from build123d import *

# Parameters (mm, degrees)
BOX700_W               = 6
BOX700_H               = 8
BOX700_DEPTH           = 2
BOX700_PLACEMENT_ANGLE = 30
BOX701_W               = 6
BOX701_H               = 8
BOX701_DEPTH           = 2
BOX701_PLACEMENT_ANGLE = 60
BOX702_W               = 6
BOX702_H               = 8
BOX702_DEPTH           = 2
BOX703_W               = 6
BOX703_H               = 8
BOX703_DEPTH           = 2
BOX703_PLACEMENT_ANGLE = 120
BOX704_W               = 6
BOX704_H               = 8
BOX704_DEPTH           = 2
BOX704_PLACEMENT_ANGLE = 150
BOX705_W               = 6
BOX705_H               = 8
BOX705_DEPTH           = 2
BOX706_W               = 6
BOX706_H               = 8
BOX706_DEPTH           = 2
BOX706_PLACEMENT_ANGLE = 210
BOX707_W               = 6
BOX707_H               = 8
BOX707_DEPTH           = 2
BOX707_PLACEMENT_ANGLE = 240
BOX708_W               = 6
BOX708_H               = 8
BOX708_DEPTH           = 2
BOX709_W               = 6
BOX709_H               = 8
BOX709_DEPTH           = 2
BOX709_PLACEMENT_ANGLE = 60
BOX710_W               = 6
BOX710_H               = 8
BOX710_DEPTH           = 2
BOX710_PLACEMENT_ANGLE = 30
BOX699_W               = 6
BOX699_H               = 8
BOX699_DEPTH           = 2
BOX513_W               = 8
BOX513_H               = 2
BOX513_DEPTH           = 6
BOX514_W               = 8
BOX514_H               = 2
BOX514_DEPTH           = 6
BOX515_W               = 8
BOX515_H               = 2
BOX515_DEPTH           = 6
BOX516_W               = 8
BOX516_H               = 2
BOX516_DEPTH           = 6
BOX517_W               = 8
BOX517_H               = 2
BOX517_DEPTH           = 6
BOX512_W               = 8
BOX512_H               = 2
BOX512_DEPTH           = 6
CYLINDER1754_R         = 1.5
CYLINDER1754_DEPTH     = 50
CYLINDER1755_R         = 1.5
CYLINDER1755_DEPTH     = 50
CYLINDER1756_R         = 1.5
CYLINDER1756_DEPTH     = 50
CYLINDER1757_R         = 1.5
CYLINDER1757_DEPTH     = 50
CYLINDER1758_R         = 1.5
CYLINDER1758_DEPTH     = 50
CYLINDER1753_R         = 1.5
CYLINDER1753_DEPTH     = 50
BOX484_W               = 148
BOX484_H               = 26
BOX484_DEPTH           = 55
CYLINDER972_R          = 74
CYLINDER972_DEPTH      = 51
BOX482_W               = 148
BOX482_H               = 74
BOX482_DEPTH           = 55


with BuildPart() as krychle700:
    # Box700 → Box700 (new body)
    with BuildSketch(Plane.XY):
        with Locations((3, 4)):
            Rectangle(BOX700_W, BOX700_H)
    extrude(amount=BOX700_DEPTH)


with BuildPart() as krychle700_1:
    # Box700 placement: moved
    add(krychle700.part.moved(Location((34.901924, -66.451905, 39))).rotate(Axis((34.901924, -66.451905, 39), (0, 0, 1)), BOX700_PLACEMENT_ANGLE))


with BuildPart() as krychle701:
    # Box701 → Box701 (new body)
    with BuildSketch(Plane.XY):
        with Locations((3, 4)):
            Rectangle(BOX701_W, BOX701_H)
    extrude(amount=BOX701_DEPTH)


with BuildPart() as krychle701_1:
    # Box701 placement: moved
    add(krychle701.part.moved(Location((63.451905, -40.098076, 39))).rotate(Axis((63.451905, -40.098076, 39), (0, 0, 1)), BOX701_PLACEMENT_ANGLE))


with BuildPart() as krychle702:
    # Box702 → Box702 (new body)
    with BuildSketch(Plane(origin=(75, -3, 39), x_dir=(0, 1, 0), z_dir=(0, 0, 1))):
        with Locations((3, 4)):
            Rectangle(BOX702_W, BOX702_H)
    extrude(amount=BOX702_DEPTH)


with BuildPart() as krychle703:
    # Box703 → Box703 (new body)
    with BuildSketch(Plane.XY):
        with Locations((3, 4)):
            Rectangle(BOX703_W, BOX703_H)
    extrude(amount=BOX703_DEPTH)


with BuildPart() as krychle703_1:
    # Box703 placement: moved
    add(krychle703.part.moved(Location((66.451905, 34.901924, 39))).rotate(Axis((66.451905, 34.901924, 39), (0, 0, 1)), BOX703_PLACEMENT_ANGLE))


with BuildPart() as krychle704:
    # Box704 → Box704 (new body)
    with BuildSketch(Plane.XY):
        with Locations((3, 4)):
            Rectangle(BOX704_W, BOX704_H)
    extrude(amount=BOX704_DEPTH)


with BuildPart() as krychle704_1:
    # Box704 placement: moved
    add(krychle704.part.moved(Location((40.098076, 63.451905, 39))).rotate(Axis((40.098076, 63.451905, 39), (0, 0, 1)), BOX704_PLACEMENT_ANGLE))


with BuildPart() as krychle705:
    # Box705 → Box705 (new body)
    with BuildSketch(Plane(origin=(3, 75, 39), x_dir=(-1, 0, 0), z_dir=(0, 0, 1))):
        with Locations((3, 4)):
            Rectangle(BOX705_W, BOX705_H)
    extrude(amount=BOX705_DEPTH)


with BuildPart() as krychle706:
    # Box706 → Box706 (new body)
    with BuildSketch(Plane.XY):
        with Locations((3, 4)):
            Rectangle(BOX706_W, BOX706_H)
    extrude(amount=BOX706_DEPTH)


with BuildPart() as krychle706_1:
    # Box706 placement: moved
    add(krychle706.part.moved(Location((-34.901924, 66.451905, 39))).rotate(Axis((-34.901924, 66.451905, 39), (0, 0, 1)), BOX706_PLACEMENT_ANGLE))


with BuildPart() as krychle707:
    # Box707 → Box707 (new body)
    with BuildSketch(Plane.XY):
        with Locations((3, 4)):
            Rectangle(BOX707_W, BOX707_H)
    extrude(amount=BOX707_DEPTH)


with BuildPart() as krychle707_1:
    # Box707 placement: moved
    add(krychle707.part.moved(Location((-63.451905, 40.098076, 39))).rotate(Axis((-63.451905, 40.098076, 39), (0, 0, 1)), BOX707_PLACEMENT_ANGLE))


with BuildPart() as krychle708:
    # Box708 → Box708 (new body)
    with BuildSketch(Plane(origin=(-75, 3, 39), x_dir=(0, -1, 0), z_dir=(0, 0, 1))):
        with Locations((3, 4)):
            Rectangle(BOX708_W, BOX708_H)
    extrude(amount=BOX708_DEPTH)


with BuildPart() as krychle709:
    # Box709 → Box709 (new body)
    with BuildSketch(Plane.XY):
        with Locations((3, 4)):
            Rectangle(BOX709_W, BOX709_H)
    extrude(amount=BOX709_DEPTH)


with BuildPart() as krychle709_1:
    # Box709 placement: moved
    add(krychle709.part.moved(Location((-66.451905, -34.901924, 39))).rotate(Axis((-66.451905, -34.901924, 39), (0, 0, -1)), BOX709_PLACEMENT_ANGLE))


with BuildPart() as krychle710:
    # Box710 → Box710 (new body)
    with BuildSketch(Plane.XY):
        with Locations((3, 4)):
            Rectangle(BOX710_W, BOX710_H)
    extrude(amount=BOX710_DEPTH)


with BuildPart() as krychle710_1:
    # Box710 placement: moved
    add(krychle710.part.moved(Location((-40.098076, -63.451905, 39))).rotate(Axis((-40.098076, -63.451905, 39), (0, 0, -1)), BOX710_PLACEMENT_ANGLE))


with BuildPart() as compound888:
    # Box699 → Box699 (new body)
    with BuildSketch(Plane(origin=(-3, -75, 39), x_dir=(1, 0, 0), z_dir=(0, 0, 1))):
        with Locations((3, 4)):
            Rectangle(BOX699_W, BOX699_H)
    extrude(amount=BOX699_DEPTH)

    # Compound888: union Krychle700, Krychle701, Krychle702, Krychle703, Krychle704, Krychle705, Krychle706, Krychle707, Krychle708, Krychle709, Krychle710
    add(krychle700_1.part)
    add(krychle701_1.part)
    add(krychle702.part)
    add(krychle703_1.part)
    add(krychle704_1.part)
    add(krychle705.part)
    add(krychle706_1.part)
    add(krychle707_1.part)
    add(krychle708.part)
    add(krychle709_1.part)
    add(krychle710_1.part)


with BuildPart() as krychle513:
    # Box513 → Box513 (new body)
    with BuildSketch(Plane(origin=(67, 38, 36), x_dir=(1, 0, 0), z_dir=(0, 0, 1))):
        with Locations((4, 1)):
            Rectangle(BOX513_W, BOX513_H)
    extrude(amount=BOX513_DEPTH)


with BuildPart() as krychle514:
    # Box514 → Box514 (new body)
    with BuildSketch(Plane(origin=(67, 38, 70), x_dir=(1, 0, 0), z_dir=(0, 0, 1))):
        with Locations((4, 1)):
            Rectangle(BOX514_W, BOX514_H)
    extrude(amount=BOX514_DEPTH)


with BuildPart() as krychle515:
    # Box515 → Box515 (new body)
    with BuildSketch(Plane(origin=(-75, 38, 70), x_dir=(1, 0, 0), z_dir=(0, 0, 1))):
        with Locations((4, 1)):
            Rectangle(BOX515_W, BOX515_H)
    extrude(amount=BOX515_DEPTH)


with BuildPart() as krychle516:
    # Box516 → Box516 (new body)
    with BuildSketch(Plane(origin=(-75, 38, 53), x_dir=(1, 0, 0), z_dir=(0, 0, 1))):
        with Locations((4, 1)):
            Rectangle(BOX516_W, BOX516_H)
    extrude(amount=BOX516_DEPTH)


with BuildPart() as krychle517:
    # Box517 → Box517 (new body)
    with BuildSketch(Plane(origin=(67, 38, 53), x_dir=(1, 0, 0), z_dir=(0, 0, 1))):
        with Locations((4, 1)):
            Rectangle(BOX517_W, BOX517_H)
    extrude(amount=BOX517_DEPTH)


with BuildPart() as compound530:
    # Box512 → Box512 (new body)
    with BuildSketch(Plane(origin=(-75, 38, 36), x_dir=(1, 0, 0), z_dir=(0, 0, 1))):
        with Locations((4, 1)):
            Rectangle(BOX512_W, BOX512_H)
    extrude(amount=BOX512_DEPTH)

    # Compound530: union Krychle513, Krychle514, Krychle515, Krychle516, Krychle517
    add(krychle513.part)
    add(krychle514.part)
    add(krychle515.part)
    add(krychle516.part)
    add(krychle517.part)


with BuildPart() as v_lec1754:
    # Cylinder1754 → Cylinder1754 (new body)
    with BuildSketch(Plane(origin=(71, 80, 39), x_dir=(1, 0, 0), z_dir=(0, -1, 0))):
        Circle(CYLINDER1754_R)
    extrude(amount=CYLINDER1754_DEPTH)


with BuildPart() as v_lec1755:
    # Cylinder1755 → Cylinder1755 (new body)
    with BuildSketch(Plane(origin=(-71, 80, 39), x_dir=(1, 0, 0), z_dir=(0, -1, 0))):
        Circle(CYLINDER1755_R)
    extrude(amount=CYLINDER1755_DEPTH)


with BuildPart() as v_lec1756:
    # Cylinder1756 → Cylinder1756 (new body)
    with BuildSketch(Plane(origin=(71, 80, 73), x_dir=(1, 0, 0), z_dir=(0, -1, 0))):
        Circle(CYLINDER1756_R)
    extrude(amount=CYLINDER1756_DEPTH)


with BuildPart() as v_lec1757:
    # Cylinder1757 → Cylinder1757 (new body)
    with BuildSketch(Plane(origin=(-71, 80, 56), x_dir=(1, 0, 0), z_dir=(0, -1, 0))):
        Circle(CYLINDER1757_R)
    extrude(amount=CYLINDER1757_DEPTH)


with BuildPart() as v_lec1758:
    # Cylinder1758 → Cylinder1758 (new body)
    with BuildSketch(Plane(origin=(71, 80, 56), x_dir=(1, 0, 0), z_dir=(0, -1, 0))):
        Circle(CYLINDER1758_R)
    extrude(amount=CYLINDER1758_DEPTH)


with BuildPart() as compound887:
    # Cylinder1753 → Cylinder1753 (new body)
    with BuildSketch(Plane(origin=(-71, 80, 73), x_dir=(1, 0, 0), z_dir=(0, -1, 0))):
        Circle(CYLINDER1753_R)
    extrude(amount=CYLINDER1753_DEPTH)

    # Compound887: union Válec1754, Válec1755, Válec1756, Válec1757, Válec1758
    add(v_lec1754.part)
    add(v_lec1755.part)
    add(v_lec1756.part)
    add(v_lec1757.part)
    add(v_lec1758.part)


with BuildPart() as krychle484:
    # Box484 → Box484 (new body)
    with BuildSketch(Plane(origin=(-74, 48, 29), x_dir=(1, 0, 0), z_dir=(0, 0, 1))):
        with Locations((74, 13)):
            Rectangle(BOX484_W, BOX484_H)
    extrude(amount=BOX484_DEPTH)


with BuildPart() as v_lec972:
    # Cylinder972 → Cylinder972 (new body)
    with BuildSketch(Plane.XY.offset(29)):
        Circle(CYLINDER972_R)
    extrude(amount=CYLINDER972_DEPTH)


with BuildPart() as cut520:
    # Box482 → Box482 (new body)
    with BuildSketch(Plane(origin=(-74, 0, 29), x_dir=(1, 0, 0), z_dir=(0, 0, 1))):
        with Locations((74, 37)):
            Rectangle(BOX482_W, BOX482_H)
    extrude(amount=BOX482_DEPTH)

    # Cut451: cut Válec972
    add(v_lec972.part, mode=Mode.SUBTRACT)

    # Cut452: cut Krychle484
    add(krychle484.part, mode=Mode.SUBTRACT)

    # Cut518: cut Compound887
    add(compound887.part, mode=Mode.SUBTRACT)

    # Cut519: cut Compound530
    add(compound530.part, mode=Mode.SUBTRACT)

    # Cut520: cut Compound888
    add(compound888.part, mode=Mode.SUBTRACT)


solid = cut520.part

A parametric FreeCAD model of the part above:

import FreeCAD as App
import Part
import Sketcher
from FreeCAD import Vector


def add_polygon(sketch, points):
    """Adds a closed chain of lines whose ends are joined by coincident constraints."""
    first, n = sketch.GeometryCount, len(points)
    for a, b in zip(points, points[1:] + points[:1]):
        sketch.addGeometry(Part.LineSegment(App.Vector(*a, 0), App.Vector(*b, 0)), False)
    for i in range(n):
        sketch.addConstraint(Sketcher.Constraint("Coincident", first + i, 2, first + (i + 1) % n, 1))

doc = App.newDocument("Part")
params = doc.addObject("Spreadsheet::Sheet", "Params")
for row, (alias, value) in enumerate([
    ("sketch1_width", "6 mm"),
    ("sketch1_height", "8 mm"),
    ("pad1_length", "2 mm"),
    ("sketch2_width", "6 mm"),
    ("sketch2_height", "8 mm"),
    ("pad2_length", "2 mm"),
    ("sketch3_width", "8 mm"),
    ("sketch3_height", "6 mm"),
    ("pad3_length", "2 mm"),
    ("sketch4_width", "6 mm"),
    ("sketch4_height", "8 mm"),
    ("pad4_length", "2 mm"),
    ("sketch5_width", "6 mm"),
    ("sketch5_height", "8 mm"),
    ("pad5_length", "2 mm"),
    ("sketch6_width", "6 mm"),
    ("sketch6_height", "8 mm"),
    ("pad6_length", "2 mm"),
    ("sketch7_width", "6 mm"),
    ("sketch7_height", "8 mm"),
    ("pad7_length", "2 mm"),
    ("sketch8_width", "6 mm"),
    ("sketch8_height", "8 mm"),
    ("pad8_length", "2 mm"),
    ("sketch9_width", "8 mm"),
    ("sketch9_height", "6 mm"),
    ("pad9_length", "2 mm"),
    ("sketch10_width", "6 mm"),
    ("sketch10_height", "8 mm"),
    ("pad10_length", "2 mm"),
    ("sketch11_width", "6 mm"),
    ("sketch11_height", "8 mm"),
    ("pad11_length", "2 mm"),
    ("sketch12_width", "6 mm"),
    ("sketch12_height", "8 mm"),
    ("pad12_length", "2 mm"),
    ("sketch13_width", "8 mm"),
    ("sketch13_height", "2 mm"),
    ("pad13_length", "6 mm"),
    ("sketch14_width", "8 mm"),
    ("sketch14_height", "2 mm"),
    ("pad14_length", "6 mm"),
    ("sketch15_width", "8 mm"),
    ("sketch15_height", "2 mm"),
    ("pad15_length", "6 mm"),
    ("sketch16_width", "8 mm"),
    ("sketch16_height", "2 mm"),
    ("pad16_length", "6 mm"),
    ("sketch17_width", "8 mm"),
    ("sketch17_height", "2 mm"),
    ("pad17_length", "6 mm"),
    ("sketch18_width", "8 mm"),
    ("sketch18_height", "2 mm"),
    ("pad18_length", "6 mm"),
    ("sketch19_diameter", "3 mm"),
    ("pad19_length", "50 mm"),
    ("sketch20_diameter", "3 mm"),
    ("pad20_length", "50 mm"),
    ("sketch21_diameter", "3 mm"),
    ("pad21_length", "50 mm"),
    ("sketch22_diameter", "3 mm"),
    ("pad22_length", "50 mm"),
    ("sketch23_diameter", "3 mm"),
    ("pad23_length", "50 mm"),
    ("sketch24_diameter", "3 mm"),
    ("pad24_length", "50 mm"),
    ("sketch25_width", "148 mm"),
    ("sketch25_height", "26 mm"),
    ("pad25_length", "55 mm"),
    ("sketch26_diameter", "148 mm"),
    ("pad26_length", "51 mm"),
    ("sketch27_width", "148 mm"),
    ("sketch27_height", "74 mm"),
    ("pad27_length", "55 mm"),
], start=1):
    params.set(f"A{row}", alias)
    params.set(f"B{row}", "=" + value)
    params.setAlias(f"B{row}", alias)

body = doc.addObject("PartDesign::Body", "Body")

sketch1 = body.newObject("Sketcher::SketchObject", "Sketch")
sketch1.AttachmentSupport = (doc.getObject("XY_Plane"), [""])
sketch1.MapMode = "FlatFace"
add_polygon(sketch1, [(0, 8), (0, 0), (6, 0), (6, 8)])
sketch1.addConstraint(Sketcher.Constraint("Vertical", 0))
sketch1.addConstraint(Sketcher.Constraint("Horizontal", 1))
sketch1.addConstraint(Sketcher.Constraint("Vertical", 2))
sketch1.addConstraint(Sketcher.Constraint("Horizontal", 3))
sketch1.addConstraint(Sketcher.Constraint("Coincident", 0, 2, -1, 1))
sketch1.addConstraint(Sketcher.Constraint("DistanceX", 1, 1, 1, 2, 6.0))
sketch1.addConstraint(Sketcher.Constraint("DistanceY", 0, 2, 0, 1, 8.0))
sketch1.setExpression("Constraints[9]", "Params.sketch1_width")
sketch1.setExpression("Constraints[10]", "Params.sketch1_height")
pad1 = body.newObject("PartDesign::Pad", "Pad")
pad1.Profile = sketch1
pad1.setExpression("Length", "Params.pad1_length")
body2 = doc.addObject("PartDesign::Body", "Body001")
doc.recompute()

body.Placement = App.Placement(Vector(34.901924, -66.451905, 39), App.Rotation(Vector(0, 0, 1), 30))
boolean = body2.newObject("PartDesign::Boolean", "Boolean")
boolean.Type = "Fuse"
boolean.addObjects([body])
body3 = doc.addObject("PartDesign::Body", "Body002")

sketch2 = body3.newObject("Sketcher::SketchObject", "Sketch001")
sketch2.AttachmentSupport = (doc.getObject("XY_Plane002"), [""])
sketch2.MapMode = "FlatFace"
add_polygon(sketch2, [(0, 8), (0, 0), (6, 0), (6, 8)])
sketch2.addConstraint(Sketcher.Constraint("Vertical", 0))
sketch2.addConstraint(Sketcher.Constraint("Horizontal", 1))
sketch2.addConstraint(Sketcher.Constraint("Vertical", 2))
sketch2.addConstraint(Sketcher.Constraint("Horizontal", 3))
sketch2.addConstraint(Sketcher.Constraint("Coincident", 0, 2, -1, 1))
sketch2.addConstraint(Sketcher.Constraint("DistanceX", 1, 1, 1, 2, 6.0))
sketch2.addConstraint(Sketcher.Constraint("DistanceY", 0, 2, 0, 1, 8.0))
sketch2.setExpression("Constraints[9]", "Params.sketch2_width")
sketch2.setExpression("Constraints[10]", "Params.sketch2_height")
pad2 = body3.newObject("PartDesign::Pad", "Pad001")
pad2.Profile = sketch2
pad2.setExpression("Length", "Params.pad2_length")
body4 = doc.addObject("PartDesign::Body", "Body003")
doc.recompute()

body3.Placement = App.Placement(Vector(63.451905, -40.098076, 39), App.Rotation(Vector(0, 0, 1), 60))
boolean2 = body4.newObject("PartDesign::Boolean", "Boolean001")
boolean2.Type = "Fuse"
boolean2.addObjects([body3])
body5 = doc.addObject("PartDesign::Body", "Body004")

sketch3 = body5.newObject("Sketcher::SketchObject", "Sketch002")
sketch3.AttachmentSupport = (doc.getObject("XY_Plane004"), [""])
sketch3.MapMode = "FlatFace"
sketch3.AttachmentOffset = App.Placement(Vector(0, 0, 39), App.Rotation())
add_polygon(sketch3, [(67, -3), (75, -3), (75, 3), (67, 3)])
sketch3.addConstraint(Sketcher.Constraint("Horizontal", 0))
sketch3.addConstraint(Sketcher.Constraint("Vertical", 1))
sketch3.addConstraint(Sketcher.Constraint("Horizontal", 2))
sketch3.addConstraint(Sketcher.Constraint("Vertical", 3))
sketch3.addConstraint(Sketcher.Constraint("DistanceX", 0, 1, 0, 2, 8.0))
sketch3.addConstraint(Sketcher.Constraint("DistanceY", 1, 1, 1, 2, 6.0))
sketch3.addConstraint(Sketcher.Constraint("DistanceX", -1, 1, 0, 2, 75.0))
sketch3.addConstraint(Sketcher.Constraint("DistanceY", 0, 2, -1, 1, 3.0))
sketch3.setExpression("Constraints[8]", "Params.sketch3_width")
sketch3.setExpression("Constraints[9]", "Params.sketch3_height")
pad3 = body5.newObject("PartDesign::Pad", "Pad002")
pad3.Profile = sketch3
pad3.setExpression("Length", "Params.pad3_length")
body6 = doc.addObject("PartDesign::Body", "Body005")

sketch4 = body6.newObject("Sketcher::SketchObject", "Sketch003")
sketch4.AttachmentSupport = (doc.getObject("XY_Plane005"), [""])
sketch4.MapMode = "FlatFace"
add_polygon(sketch4, [(0, 8), (0, 0), (6, 0), (6, 8)])
sketch4.addConstraint(Sketcher.Constraint("Vertical", 0))
sketch4.addConstraint(Sketcher.Constraint("Horizontal", 1))
sketch4.addConstraint(Sketcher.Constraint("Vertical", 2))
sketch4.addConstraint(Sketcher.Constraint("Horizontal", 3))
sketch4.addConstraint(Sketcher.Constraint("Coincident", 0, 2, -1, 1))
sketch4.addConstraint(Sketcher.Constraint("DistanceX", 1, 1, 1, 2, 6.0))
sketch4.addConstraint(Sketcher.Constraint("DistanceY", 0, 2, 0, 1, 8.0))
sketch4.setExpression("Constraints[9]", "Params.sketch4_width")
sketch4.setExpression("Constraints[10]", "Params.sketch4_height")
pad4 = body6.newObject("PartDesign::Pad", "Pad003")
pad4.Profile = sketch4
pad4.setExpression("Length", "Params.pad4_length")
body7 = doc.addObject("PartDesign::Body", "Body006")
doc.recompute()

body6.Placement = App.Placement(Vector(66.451905, 34.901924, 39), App.Rotation(Vector(0, 0, 1), 120))
boolean3 = body7.newObject("PartDesign::Boolean", "Boolean002")
boolean3.Type = "Fuse"
boolean3.addObjects([body6])
body8 = doc.addObject("PartDesign::Body", "Body007")

sketch5 = body8.newObject("Sketcher::SketchObject", "Sketch004")
sketch5.AttachmentSupport = (doc.getObject("XY_Plane007"), [""])
sketch5.MapMode = "FlatFace"
add_polygon(sketch5, [(0, 8), (0, 0), (6, 0), (6, 8)])
sketch5.addConstraint(Sketcher.Constraint("Vertical", 0))
sketch5.addConstraint(Sketcher.Constraint("Horizontal", 1))
sketch5.addConstraint(Sketcher.Constraint("Vertical", 2))
sketch5.addConstraint(Sketcher.Constraint("Horizontal", 3))
sketch5.addConstraint(Sketcher.Constraint("Coincident", 0, 2, -1, 1))
sketch5.addConstraint(Sketcher.Constraint("DistanceX", 1, 1, 1, 2, 6.0))
sketch5.addConstraint(Sketcher.Constraint("DistanceY", 0, 2, 0, 1, 8.0))
sketch5.setExpression("Constraints[9]", "Params.sketch5_width")
sketch5.setExpression("Constraints[10]", "Params.sketch5_height")
pad5 = body8.newObject("PartDesign::Pad", "Pad004")
pad5.Profile = sketch5
pad5.setExpression("Length", "Params.pad5_length")
body9 = doc.addObject("PartDesign::Body", "Body008")
doc.recompute()

body8.Placement = App.Placement(Vector(40.098076, 63.451905, 39), App.Rotation(Vector(0, 0, 1), 150))
boolean4 = body9.newObject("PartDesign::Boolean", "Boolean003")
boolean4.Type = "Fuse"
boolean4.addObjects([body8])
body10 = doc.addObject("PartDesign::Body", "Body009")

sketch6 = body10.newObject("Sketcher::SketchObject", "Sketch005")
sketch6.AttachmentSupport = (doc.getObject("XY_Plane009"), [""])
sketch6.MapMode = "FlatFace"
sketch6.AttachmentOffset = App.Placement(Vector(0, 0, 39), App.Rotation())
add_polygon(sketch6, [(3, 67), (3, 75), (-3, 75), (-3, 67)])
sketch6.addConstraint(Sketcher.Constraint("Vertical", 0))
sketch6.addConstraint(Sketcher.Constraint("Horizontal", 1))
sketch6.addConstraint(Sketcher.Constraint("Vertical", 2))
sketch6.addConstraint(Sketcher.Constraint("Horizontal", 3))
sketch6.addConstraint(Sketcher.Constraint("DistanceX", 1, 2, 1, 1, 6.0))
sketch6.addConstraint(Sketcher.Constraint("DistanceY", 0, 1, 0, 2, 8.0))
sketch6.addConstraint(Sketcher.Constraint("DistanceX", -1, 1, 0, 2, 3.0))
sketch6.addConstraint(Sketcher.Constraint("DistanceY", -1, 1, 0, 2, 75.0))
sketch6.setExpression("Constraints[8]", "Params.sketch6_width")
sketch6.setExpression("Constraints[9]", "Params.sketch6_height")
pad6 = body10.newObject("PartDesign::Pad", "Pad005")
pad6.Profile = sketch6
pad6.setExpression("Length", "Params.pad6_length")
body11 = doc.addObject("PartDesign::Body", "Body010")

sketch7 = body11.newObject("Sketcher::SketchObject", "Sketch006")
sketch7.AttachmentSupport = (doc.getObject("XY_Plane010"), [""])
sketch7.MapMode = "FlatFace"
add_polygon(sketch7, [(0, 8), (0, 0), (6, 0), (6, 8)])
sketch7.addConstraint(Sketcher.Constraint("Vertical", 0))
sketch7.addConstraint(Sketcher.Constraint("Horizontal", 1))
sketch7.addConstraint(Sketcher.Constraint("Vertical", 2))
sketch7.addConstraint(Sketcher.Constraint("Horizontal", 3))
sketch7.addConstraint(Sketcher.Constraint("Coincident", 0, 2, -1, 1))
sketch7.addConstraint(Sketcher.Constraint("DistanceX", 1, 1, 1, 2, 6.0))
sketch7.addConstraint(Sketcher.Constraint("DistanceY", 0, 2, 0, 1, 8.0))
sketch7.setExpression("Constraints[9]", "Params.sketch7_width")
sketch7.setExpression("Constraints[10]", "Params.sketch7_height")
pad7 = body11.newObject("PartDesign::Pad", "Pad006")
pad7.Profile = sketch7
pad7.setExpression("Length", "Params.pad7_length")
body12 = doc.addObject("PartDesign::Body", "Body011")
doc.recompute()

body11.Placement = App.Placement(Vector(-34.901924, 66.451905, 39), App.Rotation(Vector(0, 0, 1), 210))
boolean5 = body12.newObject("PartDesign::Boolean", "Boolean004")
boolean5.Type = "Fuse"
boolean5.addObjects([body11])
body13 = doc.addObject("PartDesign::Body", "Body012")

sketch8 = body13.newObject("Sketcher::SketchObject", "Sketch007")
sketch8.AttachmentSupport = (doc.getObject("XY_Plane012"), [""])
sketch8.MapMode = "FlatFace"
add_polygon(sketch8, [(0, 8), (0, 0), (6, 0), (6, 8)])
sketch8.addConstraint(Sketcher.Constraint("Vertical", 0))
sketch8.addConstraint(Sketcher.Constraint("Horizontal", 1))
sketch8.addConstraint(Sketcher.Constraint("Vertical", 2))
sketch8.addConstraint(Sketcher.Constraint("Horizontal", 3))
sketch8.addConstraint(Sketcher.Constraint("Coincident", 0, 2, -1, 1))
sketch8.addConstraint(Sketcher.Constraint("DistanceX", 1, 1, 1, 2, 6.0))
sketch8.addConstraint(Sketcher.Constraint("DistanceY", 0, 2, 0, 1, 8.0))
sketch8.setExpression("Constraints[9]", "Params.sketch8_width")
sketch8.setExpression("Constraints[10]", "Params.sketch8_height")
pad8 = body13.newObject("PartDesign::Pad", "Pad007")
pad8.Profile = sketch8
pad8.setExpression("Length", "Params.pad8_length")
body14 = doc.addObject("PartDesign::Body", "Body013")
doc.recompute()

body13.Placement = App.Placement(Vector(-63.451905, 40.098076, 39), App.Rotation(Vector(0, 0, 1), 240))
boolean6 = body14.newObject("PartDesign::Boolean", "Boolean005")
boolean6.Type = "Fuse"
boolean6.addObjects([body13])
body15 = doc.addObject("PartDesign::Body", "Body014")

sketch9 = body15.newObject("Sketcher::SketchObject", "Sketch008")
sketch9.AttachmentSupport = (doc.getObject("XY_Plane014"), [""])
sketch9.MapMode = "FlatFace"
sketch9.AttachmentOffset = App.Placement(Vector(0, 0, 39), App.Rotation())
add_polygon(sketch9, [(-67, 3), (-75, 3), (-75, -3), (-67, -3)])
sketch9.addConstraint(Sketcher.Constraint("Horizontal", 0))
sketch9.addConstraint(Sketcher.Constraint("Vertical", 1))
sketch9.addConstraint(Sketcher.Constraint("Horizontal", 2))
sketch9.addConstraint(Sketcher.Constraint("Vertical", 3))
sketch9.addConstraint(Sketcher.Constraint("DistanceX", 0, 2, 0, 1, 8.0))
sketch9.addConstraint(Sketcher.Constraint("DistanceY", 1, 2, 1, 1, 6.0))
sketch9.addConstraint(Sketcher.Constraint("DistanceX", 0, 2, -1, 1, 75.0))
sketch9.addConstraint(Sketcher.Constraint("DistanceY", -1, 1, 0, 2, 3.0))
sketch9.setExpression("Constraints[8]", "Params.sketch9_width")
sketch9.setExpression("Constraints[9]", "Params.sketch9_height")
pad9 = body15.newObject("PartDesign::Pad", "Pad008")
pad9.Profile = sketch9
pad9.setExpression("Length", "Params.pad9_length")
body16 = doc.addObject("PartDesign::Body", "Body015")

sketch10 = body16.newObject("Sketcher::SketchObject", "Sketch009")
sketch10.AttachmentSupport = (doc.getObject("XY_Plane015"), [""])
sketch10.MapMode = "FlatFace"
add_polygon(sketch10, [(0, 8), (0, 0), (6, 0), (6, 8)])
sketch10.addConstraint(Sketcher.Constraint("Vertical", 0))
sketch10.addConstraint(Sketcher.Constraint("Horizontal", 1))
sketch10.addConstraint(Sketcher.Constraint("Vertical", 2))
sketch10.addConstraint(Sketcher.Constraint("Horizontal", 3))
sketch10.addConstraint(Sketcher.Constraint("Coincident", 0, 2, -1, 1))
sketch10.addConstraint(Sketcher.Constraint("DistanceX", 1, 1, 1, 2, 6.0))
sketch10.addConstraint(Sketcher.Constraint("DistanceY", 0, 2, 0, 1, 8.0))
sketch10.setExpression("Constraints[9]", "Params.sketch10_width")
sketch10.setExpression("Constraints[10]", "Params.sketch10_height")
pad10 = body16.newObject("PartDesign::Pad", "Pad009")
pad10.Profile = sketch10
pad10.setExpression("Length", "Params.pad10_length")
body17 = doc.addObject("PartDesign::Body", "Body016")
doc.recompute()

body16.Placement = App.Placement(Vector(-66.451905, -34.901924, 39), App.Rotation(Vector(0, 0, -1), 60))
boolean7 = body17.newObject("PartDesign::Boolean", "Boolean006")
boolean7.Type = "Fuse"
boolean7.addObjects([body16])
body18 = doc.addObject("PartDesign::Body", "Body017")

sketch11 = body18.newObject("Sketcher::SketchObject", "Sketch010")
sketch11.AttachmentSupport = (doc.getObject("XY_Plane017"), [""])
sketch11.MapMode = "FlatFace"
add_polygon(sketch11, [(0, 8), (0, 0), (6, 0), (6, 8)])
sketch11.addConstraint(Sketcher.Constraint("Vertical", 0))
sketch11.addConstraint(Sketcher.Constraint("Horizontal", 1))
sketch11.addConstraint(Sketcher.Constraint("Vertical", 2))
sketch11.addConstraint(Sketcher.Constraint("Horizontal", 3))
sketch11.addConstraint(Sketcher.Constraint("Coincident", 0, 2, -1, 1))
sketch11.addConstraint(Sketcher.Constraint("DistanceX", 1, 1, 1, 2, 6.0))
sketch11.addConstraint(Sketcher.Constraint("DistanceY", 0, 2, 0, 1, 8.0))
sketch11.setExpression("Constraints[9]", "Params.sketch11_width")
sketch11.setExpression("Constraints[10]", "Params.sketch11_height")
pad11 = body18.newObject("PartDesign::Pad", "Pad010")
pad11.Profile = sketch11
pad11.setExpression("Length", "Params.pad11_length")
body19 = doc.addObject("PartDesign::Body", "Body018")
doc.recompute()

body18.Placement = App.Placement(Vector(-40.098076, -63.451905, 39), App.Rotation(Vector(0, 0, -1), 30))
boolean8 = body19.newObject("PartDesign::Boolean", "Boolean007")
boolean8.Type = "Fuse"
boolean8.addObjects([body18])
body20 = doc.addObject("PartDesign::Body", "Body019")
body20.AllowCompound = True

sketch12 = body20.newObject("Sketcher::SketchObject", "Sketch011")
sketch12.AttachmentSupport = (doc.getObject("XY_Plane019"), [""])
sketch12.MapMode = "FlatFace"
sketch12.AttachmentOffset = App.Placement(Vector(0, 0, 39), App.Rotation())
add_polygon(sketch12, [(-3, -67), (-3, -75), (3, -75), (3, -67)])
sketch12.addConstraint(Sketcher.Constraint("Vertical", 0))
sketch12.addConstraint(Sketcher.Constraint("Horizontal", 1))
sketch12.addConstraint(Sketcher.Constraint("Vertical", 2))
sketch12.addConstraint(Sketcher.Constraint("Horizontal", 3))
sketch12.addConstraint(Sketcher.Constraint("DistanceX", 1, 1, 1, 2, 6.0))
sketch12.addConstraint(Sketcher.Constraint("DistanceY", 0, 2, 0, 1, 8.0))
sketch12.addConstraint(Sketcher.Constraint("DistanceX", 0, 2, -1, 1, 3.0))
sketch12.addConstraint(Sketcher.Constraint("DistanceY", 0, 2, -1, 1, 75.0))
sketch12.setExpression("Constraints[8]", "Params.sketch12_width")
sketch12.setExpression("Constraints[9]", "Params.sketch12_height")
pad12 = body20.newObject("PartDesign::Pad", "Pad011")
pad12.Profile = sketch12
pad12.setExpression("Length", "Params.pad12_length")
doc.recompute()

boolean9 = body20.newObject("PartDesign::Boolean", "Boolean008")
boolean9.Type = "Fuse"
boolean9.addObjects([body2])
doc.recompute()

boolean10 = body20.newObject("PartDesign::Boolean", "Boolean009")
boolean10.Type = "Fuse"
boolean10.addObjects([body4])
doc.recompute()

boolean11 = body20.newObject("PartDesign::Boolean", "Boolean010")
boolean11.Type = "Fuse"
boolean11.addObjects([body5])
doc.recompute()

boolean12 = body20.newObject("PartDesign::Boolean", "Boolean011")
boolean12.Type = "Fuse"
boolean12.addObjects([body7])
doc.recompute()

boolean13 = body20.newObject("PartDesign::Boolean", "Boolean012")
boolean13.Type = "Fuse"
boolean13.addObjects([body9])
doc.recompute()

boolean14 = body20.newObject("PartDesign::Boolean", "Boolean013")
boolean14.Type = "Fuse"
boolean14.addObjects([body10])
doc.recompute()

boolean15 = body20.newObject("PartDesign::Boolean", "Boolean014")
boolean15.Type = "Fuse"
boolean15.addObjects([body12])
doc.recompute()

boolean16 = body20.newObject("PartDesign::Boolean", "Boolean015")
boolean16.Type = "Fuse"
boolean16.addObjects([body14])
doc.recompute()

boolean17 = body20.newObject("PartDesign::Boolean", "Boolean016")
boolean17.Type = "Fuse"
boolean17.addObjects([body15])
doc.recompute()

boolean18 = body20.newObject("PartDesign::Boolean", "Boolean017")
boolean18.Type = "Fuse"
boolean18.addObjects([body17])
doc.recompute()

boolean19 = body20.newObject("PartDesign::Boolean", "Boolean018")
boolean19.Type = "Fuse"
boolean19.addObjects([body19])
body21 = doc.addObject("PartDesign::Body", "Body020")

sketch13 = body21.newObject("Sketcher::SketchObject", "Sketch012")
sketch13.AttachmentSupport = (doc.getObject("XY_Plane020"), [""])
sketch13.MapMode = "FlatFace"
sketch13.AttachmentOffset = App.Placement(Vector(0, 0, 36), App.Rotation())
add_polygon(sketch13, [(67, 40), (67, 38), (75, 38), (75, 40)])
sketch13.addConstraint(Sketcher.Constraint("Vertical", 0))
sketch13.addConstraint(Sketcher.Constraint("Horizontal", 1))
sketch13.addConstraint(Sketcher.Constraint("Vertical", 2))
sketch13.addConstraint(Sketcher.Constraint("Horizontal", 3))
sketch13.addConstraint(Sketcher.Constraint("DistanceX", 1, 1, 1, 2, 8.0))
sketch13.addConstraint(Sketcher.Constraint("DistanceY", 0, 2, 0, 1, 2.0))
sketch13.addConstraint(Sketcher.Constraint("DistanceX", -1, 1, 0, 2, 67.0))
sketch13.addConstraint(Sketcher.Constraint("DistanceY", -1, 1, 0, 2, 38.0))
sketch13.setExpression("Constraints[8]", "Params.sketch13_width")
sketch13.setExpression("Constraints[9]", "Params.sketch13_height")
pad13 = body21.newObject("PartDesign::Pad", "Pad012")
pad13.Profile = sketch13
pad13.setExpression("Length", "Params.pad13_length")
body22 = doc.addObject("PartDesign::Body", "Body021")

sketch14 = body22.newObject("Sketcher::SketchObject", "Sketch013")
sketch14.AttachmentSupport = (doc.getObject("XY_Plane021"), [""])
sketch14.MapMode = "FlatFace"
sketch14.AttachmentOffset = App.Placement(Vector(0, 0, 70), App.Rotation())
add_polygon(sketch14, [(67, 40), (67, 38), (75, 38), (75, 40)])
sketch14.addConstraint(Sketcher.Constraint("Vertical", 0))
sketch14.addConstraint(Sketcher.Constraint("Horizontal", 1))
sketch14.addConstraint(Sketcher.Constraint("Vertical", 2))
sketch14.addConstraint(Sketcher.Constraint("Horizontal", 3))
sketch14.addConstraint(Sketcher.Constraint("DistanceX", 1, 1, 1, 2, 8.0))
sketch14.addConstraint(Sketcher.Constraint("DistanceY", 0, 2, 0, 1, 2.0))
sketch14.addConstraint(Sketcher.Constraint("DistanceX", -1, 1, 0, 2, 67.0))
sketch14.addConstraint(Sketcher.Constraint("DistanceY", -1, 1, 0, 2, 38.0))
sketch14.setExpression("Constraints[8]", "Params.sketch14_width")
sketch14.setExpression("Constraints[9]", "Params.sketch14_height")
pad14 = body22.newObject("PartDesign::Pad", "Pad013")
pad14.Profile = sketch14
pad14.setExpression("Length", "Params.pad14_length")
body23 = doc.addObject("PartDesign::Body", "Body022")

sketch15 = body23.newObject("Sketcher::SketchObject", "Sketch014")
sketch15.AttachmentSupport = (doc.getObject("XY_Plane022"), [""])
sketch15.MapMode = "FlatFace"
sketch15.AttachmentOffset = App.Placement(Vector(0, 0, 70), App.Rotation())
add_polygon(sketch15, [(-75, 40), (-75, 38), (-67, 38), (-67, 40)])
sketch15.addConstraint(Sketcher.Constraint("Vertical", 0))
sketch15.addConstraint(Sketcher.Constraint("Horizontal", 1))
sketch15.addConstraint(Sketcher.Constraint("Vertical", 2))
sketch15.addConstraint(Sketcher.Constraint("Horizontal", 3))
sketch15.addConstraint(Sketcher.Constraint("DistanceX", 1, 1, 1, 2, 8.0))
sketch15.addConstraint(Sketcher.Constraint("DistanceY", 0, 2, 0, 1, 2.0))
sketch15.addConstraint(Sketcher.Constraint("DistanceX", 0, 2, -1, 1, 75.0))
sketch15.addConstraint(Sketcher.Constraint("DistanceY", -1, 1, 0, 2, 38.0))
sketch15.setExpression("Constraints[8]", "Params.sketch15_width")
sketch15.setExpression("Constraints[9]", "Params.sketch15_height")
pad15 = body23.newObject("PartDesign::Pad", "Pad014")
pad15.Profile = sketch15
pad15.setExpression("Length", "Params.pad15_length")
body24 = doc.addObject("PartDesign::Body", "Body023")

sketch16 = body24.newObject("Sketcher::SketchObject", "Sketch015")
sketch16.AttachmentSupport = (doc.getObject("XY_Plane023"), [""])
sketch16.MapMode = "FlatFace"
sketch16.AttachmentOffset = App.Placement(Vector(0, 0, 53), App.Rotation())
add_polygon(sketch16, [(-75, 40), (-75, 38), (-67, 38), (-67, 40)])
sketch16.addConstraint(Sketcher.Constraint("Vertical", 0))
sketch16.addConstraint(Sketcher.Constraint("Horizontal", 1))
sketch16.addConstraint(Sketcher.Constraint("Vertical", 2))
sketch16.addConstraint(Sketcher.Constraint("Horizontal", 3))
sketch16.addConstraint(Sketcher.Constraint("DistanceX", 1, 1, 1, 2, 8.0))
sketch16.addConstraint(Sketcher.Constraint("DistanceY", 0, 2, 0, 1, 2.0))
sketch16.addConstraint(Sketcher.Constraint("DistanceX", 0, 2, -1, 1, 75.0))
sketch16.addConstraint(Sketcher.Constraint("DistanceY", -1, 1, 0, 2, 38.0))
sketch16.setExpression("Constraints[8]", "Params.sketch16_width")
sketch16.setExpression("Constraints[9]", "Params.sketch16_height")
pad16 = body24.newObject("PartDesign::Pad", "Pad015")
pad16.Profile = sketch16
pad16.setExpression("Length", "Params.pad16_length")
body25 = doc.addObject("PartDesign::Body", "Body024")

sketch17 = body25.newObject("Sketcher::SketchObject", "Sketch016")
sketch17.AttachmentSupport = (doc.getObject("XY_Plane024"), [""])
sketch17.MapMode = "FlatFace"
sketch17.AttachmentOffset = App.Placement(Vector(0, 0, 53), App.Rotation())
add_polygon(sketch17, [(67, 40), (67, 38), (75, 38), (75, 40)])
sketch17.addConstraint(Sketcher.Constraint("Vertical", 0))
sketch17.addConstraint(Sketcher.Constraint("Horizontal", 1))
sketch17.addConstraint(Sketcher.Constraint("Vertical", 2))
sketch17.addConstraint(Sketcher.Constraint("Horizontal", 3))
sketch17.addConstraint(Sketcher.Constraint("DistanceX", 1, 1, 1, 2, 8.0))
sketch17.addConstraint(Sketcher.Constraint("DistanceY", 0, 2, 0, 1, 2.0))
sketch17.addConstraint(Sketcher.Constraint("DistanceX", -1, 1, 0, 2, 67.0))
sketch17.addConstraint(Sketcher.Constraint("DistanceY", -1, 1, 0, 2, 38.0))
sketch17.setExpression("Constraints[8]", "Params.sketch17_width")
sketch17.setExpression("Constraints[9]", "Params.sketch17_height")
pad17 = body25.newObject("PartDesign::Pad", "Pad016")
pad17.Profile = sketch17
pad17.setExpression("Length", "Params.pad17_length")
body26 = doc.addObject("PartDesign::Body", "Body025")
body26.AllowCompound = True

sketch18 = body26.newObject("Sketcher::SketchObject", "Sketch017")
sketch18.AttachmentSupport = (doc.getObject("XY_Plane025"), [""])
sketch18.MapMode = "FlatFace"
sketch18.AttachmentOffset = App.Placement(Vector(0, 0, 36), App.Rotation())
add_polygon(sketch18, [(-75, 40), (-75, 38), (-67, 38), (-67, 40)])
sketch18.addConstraint(Sketcher.Constraint("Vertical", 0))
sketch18.addConstraint(Sketcher.Constraint("Horizontal", 1))
sketch18.addConstraint(Sketcher.Constraint("Vertical", 2))
sketch18.addConstraint(Sketcher.Constraint("Horizontal", 3))
sketch18.addConstraint(Sketcher.Constraint("DistanceX", 1, 1, 1, 2, 8.0))
sketch18.addConstraint(Sketcher.Constraint("DistanceY", 0, 2, 0, 1, 2.0))
sketch18.addConstraint(Sketcher.Constraint("DistanceX", 0, 2, -1, 1, 75.0))
sketch18.addConstraint(Sketcher.Constraint("DistanceY", -1, 1, 0, 2, 38.0))
sketch18.setExpression("Constraints[8]", "Params.sketch18_width")
sketch18.setExpression("Constraints[9]", "Params.sketch18_height")
pad18 = body26.newObject("PartDesign::Pad", "Pad017")
pad18.Profile = sketch18
pad18.setExpression("Length", "Params.pad18_length")
doc.recompute()

boolean20 = body26.newObject("PartDesign::Boolean", "Boolean019")
boolean20.Type = "Fuse"
boolean20.addObjects([body21])
doc.recompute()

boolean21 = body26.newObject("PartDesign::Boolean", "Boolean020")
boolean21.Type = "Fuse"
boolean21.addObjects([body22])
doc.recompute()

boolean22 = body26.newObject("PartDesign::Boolean", "Boolean021")
boolean22.Type = "Fuse"
boolean22.addObjects([body23])
doc.recompute()

boolean23 = body26.newObject("PartDesign::Boolean", "Boolean022")
boolean23.Type = "Fuse"
boolean23.addObjects([body24])
doc.recompute()

boolean24 = body26.newObject("PartDesign::Boolean", "Boolean023")
boolean24.Type = "Fuse"
boolean24.addObjects([body25])
body27 = doc.addObject("PartDesign::Body", "Body026")

sketch19 = body27.newObject("Sketcher::SketchObject", "Sketch018")
sketch19.AttachmentSupport = (doc.getObject("XZ_Plane026"), [""])
sketch19.MapMode = "FlatFace"
sketch19.AttachmentOffset = App.Placement(Vector(0, 0, -80), App.Rotation())
sketch19.addGeometry(Part.Circle(Vector(71, 39, 0), Vector(0, 0, 1), 1.5), False)
sketch19.addConstraint(Sketcher.Constraint("Diameter", 0, 3.0))
sketch19.addConstraint(Sketcher.Constraint("DistanceX", -1, 1, 0, 3, 71.0))
sketch19.addConstraint(Sketcher.Constraint("DistanceY", -1, 1, 0, 3, 39.0))
sketch19.setExpression("Constraints[0]", "Params.sketch19_diameter")
pad19 = body27.newObject("PartDesign::Pad", "Pad018")
pad19.Profile = sketch19
pad19.setExpression("Length", "Params.pad19_length")
body28 = doc.addObject("PartDesign::Body", "Body027")

sketch20 = body28.newObject("Sketcher::SketchObject", "Sketch019")
sketch20.AttachmentSupport = (doc.getObject("XZ_Plane027"), [""])
sketch20.MapMode = "FlatFace"
sketch20.AttachmentOffset = App.Placement(Vector(0, 0, -80), App.Rotation())
sketch20.addGeometry(Part.Circle(Vector(-71, 39, 0), Vector(0, 0, 1), 1.5), False)
sketch20.addConstraint(Sketcher.Constraint("Diameter", 0, 3.0))
sketch20.addConstraint(Sketcher.Constraint("DistanceX", 0, 3, -1, 1, 71.0))
sketch20.addConstraint(Sketcher.Constraint("DistanceY", -1, 1, 0, 3, 39.0))
sketch20.setExpression("Constraints[0]", "Params.sketch20_diameter")
pad20 = body28.newObject("PartDesign::Pad", "Pad019")
pad20.Profile = sketch20
pad20.setExpression("Length", "Params.pad20_length")
body29 = doc.addObject("PartDesign::Body", "Body028")

sketch21 = body29.newObject("Sketcher::SketchObject", "Sketch020")
sketch21.AttachmentSupport = (doc.getObject("XZ_Plane028"), [""])
sketch21.MapMode = "FlatFace"
sketch21.AttachmentOffset = App.Placement(Vector(0, 0, -80), App.Rotation())
sketch21.addGeometry(Part.Circle(Vector(71, 73, 0), Vector(0, 0, 1), 1.5), False)
sketch21.addConstraint(Sketcher.Constraint("Diameter", 0, 3.0))
sketch21.addConstraint(Sketcher.Constraint("DistanceX", -1, 1, 0, 3, 71.0))
sketch21.addConstraint(Sketcher.Constraint("DistanceY", -1, 1, 0, 3, 73.0))
sketch21.setExpression("Constraints[0]", "Params.sketch21_diameter")
pad21 = body29.newObject("PartDesign::Pad", "Pad020")
pad21.Profile = sketch21
pad21.setExpression("Length", "Params.pad21_length")
body30 = doc.addObject("PartDesign::Body", "Body029")

sketch22 = body30.newObject("Sketcher::SketchObject", "Sketch021")
sketch22.AttachmentSupport = (doc.getObject("XZ_Plane029"), [""])
sketch22.MapMode = "FlatFace"
sketch22.AttachmentOffset = App.Placement(Vector(0, 0, -80), App.Rotation())
sketch22.addGeometry(Part.Circle(Vector(-71, 56, 0), Vector(0, 0, 1), 1.5), False)
sketch22.addConstraint(Sketcher.Constraint("Diameter", 0, 3.0))
sketch22.addConstraint(Sketcher.Constraint("DistanceX", 0, 3, -1, 1, 71.0))
sketch22.addConstraint(Sketcher.Constraint("DistanceY", -1, 1, 0, 3, 56.0))
sketch22.setExpression("Constraints[0]", "Params.sketch22_diameter")
pad22 = body30.newObject("PartDesign::Pad", "Pad021")
pad22.Profile = sketch22
pad22.setExpression("Length", "Params.pad22_length")
body31 = doc.addObject("PartDesign::Body", "Body030")

sketch23 = body31.newObject("Sketcher::SketchObject", "Sketch022")
sketch23.AttachmentSupport = (doc.getObject("XZ_Plane030"), [""])
sketch23.MapMode = "FlatFace"
sketch23.AttachmentOffset = App.Placement(Vector(0, 0, -80), App.Rotation())
sketch23.addGeometry(Part.Circle(Vector(71, 56, 0), Vector(0, 0, 1), 1.5), False)
sketch23.addConstraint(Sketcher.Constraint("Diameter", 0, 3.0))
sketch23.addConstraint(Sketcher.Constraint("DistanceX", -1, 1, 0, 3, 71.0))
sketch23.addConstraint(Sketcher.Constraint("DistanceY", -1, 1, 0, 3, 56.0))
sketch23.setExpression("Constraints[0]", "Params.sketch23_diameter")
pad23 = body31.newObject("PartDesign::Pad", "Pad022")
pad23.Profile = sketch23
pad23.setExpression("Length", "Params.pad23_length")
body32 = doc.addObject("PartDesign::Body", "Body031")
body32.AllowCompound = True

sketch24 = body32.newObject("Sketcher::SketchObject", "Sketch023")
sketch24.AttachmentSupport = (doc.getObject("XZ_Plane031"), [""])
sketch24.MapMode = "FlatFace"
sketch24.AttachmentOffset = App.Placement(Vector(0, 0, -80), App.Rotation())
sketch24.addGeometry(Part.Circle(Vector(-71, 73, 0), Vector(0, 0, 1), 1.5), False)
sketch24.addConstraint(Sketcher.Constraint("Diameter", 0, 3.0))
sketch24.addConstraint(Sketcher.Constraint("DistanceX", 0, 3, -1, 1, 71.0))
sketch24.addConstraint(Sketcher.Constraint("DistanceY", -1, 1, 0, 3, 73.0))
sketch24.setExpression("Constraints[0]", "Params.sketch24_diameter")
pad24 = body32.newObject("PartDesign::Pad", "Pad023")
pad24.Profile = sketch24
pad24.setExpression("Length", "Params.pad24_length")
doc.recompute()

boolean25 = body32.newObject("PartDesign::Boolean", "Boolean024")
boolean25.Type = "Fuse"
boolean25.addObjects([body27])
doc.recompute()

boolean26 = body32.newObject("PartDesign::Boolean", "Boolean025")
boolean26.Type = "Fuse"
boolean26.addObjects([body28])
doc.recompute()

boolean27 = body32.newObject("PartDesign::Boolean", "Boolean026")
boolean27.Type = "Fuse"
boolean27.addObjects([body29])
doc.recompute()

boolean28 = body32.newObject("PartDesign::Boolean", "Boolean027")
boolean28.Type = "Fuse"
boolean28.addObjects([body30])
doc.recompute()

boolean29 = body32.newObject("PartDesign::Boolean", "Boolean028")
boolean29.Type = "Fuse"
boolean29.addObjects([body31])
body33 = doc.addObject("PartDesign::Body", "Body032")

sketch25 = body33.newObject("Sketcher::SketchObject", "Sketch024")
sketch25.AttachmentSupport = (doc.getObject("XY_Plane032"), [""])
sketch25.MapMode = "FlatFace"
sketch25.AttachmentOffset = App.Placement(Vector(0, 0, 29), App.Rotation())
add_polygon(sketch25, [(-74, 74), (-74, 48), (74, 48), (74, 74)])
sketch25.addConstraint(Sketcher.Constraint("Vertical", 0))
sketch25.addConstraint(Sketcher.Constraint("Horizontal", 1))
sketch25.addConstraint(Sketcher.Constraint("Vertical", 2))
sketch25.addConstraint(Sketcher.Constraint("Horizontal", 3))
sketch25.addConstraint(Sketcher.Constraint("DistanceX", 1, 1, 1, 2, 148.0))
sketch25.addConstraint(Sketcher.Constraint("DistanceY", 0, 2, 0, 1, 26.0))
sketch25.addConstraint(Sketcher.Constraint("DistanceX", 0, 2, -1, 1, 74.0))
sketch25.addConstraint(Sketcher.Constraint("DistanceY", -1, 1, 0, 2, 48.0))
sketch25.setExpression("Constraints[8]", "Params.sketch25_width")
sketch25.setExpression("Constraints[9]", "Params.sketch25_height")
pad25 = body33.newObject("PartDesign::Pad", "Pad024")
pad25.Profile = sketch25
pad25.setExpression("Length", "Params.pad25_length")
body34 = doc.addObject("PartDesign::Body", "Body033")

sketch26 = body34.newObject("Sketcher::SketchObject", "Sketch025")
sketch26.AttachmentSupport = (doc.getObject("XY_Plane033"), [""])
sketch26.MapMode = "FlatFace"
sketch26.AttachmentOffset = App.Placement(Vector(0, 0, 29), App.Rotation())
sketch26.addGeometry(Part.Circle(Vector(0, 0, 0), Vector(0, 0, 1), 74), False)
sketch26.addConstraint(Sketcher.Constraint("Coincident", 0, 3, -1, 1))
sketch26.addConstraint(Sketcher.Constraint("Diameter", 0, 148.0))
sketch26.setExpression("Constraints[1]", "Params.sketch26_diameter")
pad26 = body34.newObject("PartDesign::Pad", "Pad025")
pad26.Profile = sketch26
pad26.setExpression("Length", "Params.pad26_length")
body35 = doc.addObject("PartDesign::Body", "Body034")

sketch27 = body35.newObject("Sketcher::SketchObject", "Sketch026")
sketch27.AttachmentSupport = (doc.getObject("XY_Plane034"), [""])
sketch27.MapMode = "FlatFace"
sketch27.AttachmentOffset = App.Placement(Vector(0, 0, 29), App.Rotation())
add_polygon(sketch27, [(-74, 74), (-74, 0), (74, 0), (74, 74)])
sketch27.addConstraint(Sketcher.Constraint("Vertical", 0))
sketch27.addConstraint(Sketcher.Constraint("Horizontal", 1))
sketch27.addConstraint(Sketcher.Constraint("Vertical", 2))
sketch27.addConstraint(Sketcher.Constraint("Horizontal", 3))
sketch27.addConstraint(Sketcher.Constraint("Symmetric", 0, 2, 1, 2, -1, 1))
sketch27.addConstraint(Sketcher.Constraint("DistanceX", 1, 1, 1, 2, 148.0))
sketch27.addConstraint(Sketcher.Constraint("DistanceY", 0, 2, 0, 1, 74.0))
sketch27.setExpression("Constraints[9]", "Params.sketch27_width")
sketch27.setExpression("Constraints[10]", "Params.sketch27_height")
pad27 = body35.newObject("PartDesign::Pad", "Pad026")
pad27.Profile = sketch27
pad27.setExpression("Length", "Params.pad27_length")
doc.recompute()

boolean30 = body35.newObject("PartDesign::Boolean", "Boolean029")
boolean30.Type = "Cut"
boolean30.addObjects([body34])
doc.recompute()

boolean31 = body35.newObject("PartDesign::Boolean", "Boolean030")
boolean31.Type = "Cut"
boolean31.addObjects([body33])
doc.recompute()

boolean32 = body35.newObject("PartDesign::Boolean", "Boolean031")
boolean32.Type = "Cut"
boolean32.addObjects([body32])
doc.recompute()

boolean33 = body35.newObject("PartDesign::Boolean", "Boolean032")
boolean33.Type = "Cut"
boolean33.addObjects([body26])
doc.recompute()

boolean34 = body35.newObject("PartDesign::Boolean", "Boolean033")
boolean34.Type = "Cut"
boolean34.addObjects([body20])

doc.recompute()
